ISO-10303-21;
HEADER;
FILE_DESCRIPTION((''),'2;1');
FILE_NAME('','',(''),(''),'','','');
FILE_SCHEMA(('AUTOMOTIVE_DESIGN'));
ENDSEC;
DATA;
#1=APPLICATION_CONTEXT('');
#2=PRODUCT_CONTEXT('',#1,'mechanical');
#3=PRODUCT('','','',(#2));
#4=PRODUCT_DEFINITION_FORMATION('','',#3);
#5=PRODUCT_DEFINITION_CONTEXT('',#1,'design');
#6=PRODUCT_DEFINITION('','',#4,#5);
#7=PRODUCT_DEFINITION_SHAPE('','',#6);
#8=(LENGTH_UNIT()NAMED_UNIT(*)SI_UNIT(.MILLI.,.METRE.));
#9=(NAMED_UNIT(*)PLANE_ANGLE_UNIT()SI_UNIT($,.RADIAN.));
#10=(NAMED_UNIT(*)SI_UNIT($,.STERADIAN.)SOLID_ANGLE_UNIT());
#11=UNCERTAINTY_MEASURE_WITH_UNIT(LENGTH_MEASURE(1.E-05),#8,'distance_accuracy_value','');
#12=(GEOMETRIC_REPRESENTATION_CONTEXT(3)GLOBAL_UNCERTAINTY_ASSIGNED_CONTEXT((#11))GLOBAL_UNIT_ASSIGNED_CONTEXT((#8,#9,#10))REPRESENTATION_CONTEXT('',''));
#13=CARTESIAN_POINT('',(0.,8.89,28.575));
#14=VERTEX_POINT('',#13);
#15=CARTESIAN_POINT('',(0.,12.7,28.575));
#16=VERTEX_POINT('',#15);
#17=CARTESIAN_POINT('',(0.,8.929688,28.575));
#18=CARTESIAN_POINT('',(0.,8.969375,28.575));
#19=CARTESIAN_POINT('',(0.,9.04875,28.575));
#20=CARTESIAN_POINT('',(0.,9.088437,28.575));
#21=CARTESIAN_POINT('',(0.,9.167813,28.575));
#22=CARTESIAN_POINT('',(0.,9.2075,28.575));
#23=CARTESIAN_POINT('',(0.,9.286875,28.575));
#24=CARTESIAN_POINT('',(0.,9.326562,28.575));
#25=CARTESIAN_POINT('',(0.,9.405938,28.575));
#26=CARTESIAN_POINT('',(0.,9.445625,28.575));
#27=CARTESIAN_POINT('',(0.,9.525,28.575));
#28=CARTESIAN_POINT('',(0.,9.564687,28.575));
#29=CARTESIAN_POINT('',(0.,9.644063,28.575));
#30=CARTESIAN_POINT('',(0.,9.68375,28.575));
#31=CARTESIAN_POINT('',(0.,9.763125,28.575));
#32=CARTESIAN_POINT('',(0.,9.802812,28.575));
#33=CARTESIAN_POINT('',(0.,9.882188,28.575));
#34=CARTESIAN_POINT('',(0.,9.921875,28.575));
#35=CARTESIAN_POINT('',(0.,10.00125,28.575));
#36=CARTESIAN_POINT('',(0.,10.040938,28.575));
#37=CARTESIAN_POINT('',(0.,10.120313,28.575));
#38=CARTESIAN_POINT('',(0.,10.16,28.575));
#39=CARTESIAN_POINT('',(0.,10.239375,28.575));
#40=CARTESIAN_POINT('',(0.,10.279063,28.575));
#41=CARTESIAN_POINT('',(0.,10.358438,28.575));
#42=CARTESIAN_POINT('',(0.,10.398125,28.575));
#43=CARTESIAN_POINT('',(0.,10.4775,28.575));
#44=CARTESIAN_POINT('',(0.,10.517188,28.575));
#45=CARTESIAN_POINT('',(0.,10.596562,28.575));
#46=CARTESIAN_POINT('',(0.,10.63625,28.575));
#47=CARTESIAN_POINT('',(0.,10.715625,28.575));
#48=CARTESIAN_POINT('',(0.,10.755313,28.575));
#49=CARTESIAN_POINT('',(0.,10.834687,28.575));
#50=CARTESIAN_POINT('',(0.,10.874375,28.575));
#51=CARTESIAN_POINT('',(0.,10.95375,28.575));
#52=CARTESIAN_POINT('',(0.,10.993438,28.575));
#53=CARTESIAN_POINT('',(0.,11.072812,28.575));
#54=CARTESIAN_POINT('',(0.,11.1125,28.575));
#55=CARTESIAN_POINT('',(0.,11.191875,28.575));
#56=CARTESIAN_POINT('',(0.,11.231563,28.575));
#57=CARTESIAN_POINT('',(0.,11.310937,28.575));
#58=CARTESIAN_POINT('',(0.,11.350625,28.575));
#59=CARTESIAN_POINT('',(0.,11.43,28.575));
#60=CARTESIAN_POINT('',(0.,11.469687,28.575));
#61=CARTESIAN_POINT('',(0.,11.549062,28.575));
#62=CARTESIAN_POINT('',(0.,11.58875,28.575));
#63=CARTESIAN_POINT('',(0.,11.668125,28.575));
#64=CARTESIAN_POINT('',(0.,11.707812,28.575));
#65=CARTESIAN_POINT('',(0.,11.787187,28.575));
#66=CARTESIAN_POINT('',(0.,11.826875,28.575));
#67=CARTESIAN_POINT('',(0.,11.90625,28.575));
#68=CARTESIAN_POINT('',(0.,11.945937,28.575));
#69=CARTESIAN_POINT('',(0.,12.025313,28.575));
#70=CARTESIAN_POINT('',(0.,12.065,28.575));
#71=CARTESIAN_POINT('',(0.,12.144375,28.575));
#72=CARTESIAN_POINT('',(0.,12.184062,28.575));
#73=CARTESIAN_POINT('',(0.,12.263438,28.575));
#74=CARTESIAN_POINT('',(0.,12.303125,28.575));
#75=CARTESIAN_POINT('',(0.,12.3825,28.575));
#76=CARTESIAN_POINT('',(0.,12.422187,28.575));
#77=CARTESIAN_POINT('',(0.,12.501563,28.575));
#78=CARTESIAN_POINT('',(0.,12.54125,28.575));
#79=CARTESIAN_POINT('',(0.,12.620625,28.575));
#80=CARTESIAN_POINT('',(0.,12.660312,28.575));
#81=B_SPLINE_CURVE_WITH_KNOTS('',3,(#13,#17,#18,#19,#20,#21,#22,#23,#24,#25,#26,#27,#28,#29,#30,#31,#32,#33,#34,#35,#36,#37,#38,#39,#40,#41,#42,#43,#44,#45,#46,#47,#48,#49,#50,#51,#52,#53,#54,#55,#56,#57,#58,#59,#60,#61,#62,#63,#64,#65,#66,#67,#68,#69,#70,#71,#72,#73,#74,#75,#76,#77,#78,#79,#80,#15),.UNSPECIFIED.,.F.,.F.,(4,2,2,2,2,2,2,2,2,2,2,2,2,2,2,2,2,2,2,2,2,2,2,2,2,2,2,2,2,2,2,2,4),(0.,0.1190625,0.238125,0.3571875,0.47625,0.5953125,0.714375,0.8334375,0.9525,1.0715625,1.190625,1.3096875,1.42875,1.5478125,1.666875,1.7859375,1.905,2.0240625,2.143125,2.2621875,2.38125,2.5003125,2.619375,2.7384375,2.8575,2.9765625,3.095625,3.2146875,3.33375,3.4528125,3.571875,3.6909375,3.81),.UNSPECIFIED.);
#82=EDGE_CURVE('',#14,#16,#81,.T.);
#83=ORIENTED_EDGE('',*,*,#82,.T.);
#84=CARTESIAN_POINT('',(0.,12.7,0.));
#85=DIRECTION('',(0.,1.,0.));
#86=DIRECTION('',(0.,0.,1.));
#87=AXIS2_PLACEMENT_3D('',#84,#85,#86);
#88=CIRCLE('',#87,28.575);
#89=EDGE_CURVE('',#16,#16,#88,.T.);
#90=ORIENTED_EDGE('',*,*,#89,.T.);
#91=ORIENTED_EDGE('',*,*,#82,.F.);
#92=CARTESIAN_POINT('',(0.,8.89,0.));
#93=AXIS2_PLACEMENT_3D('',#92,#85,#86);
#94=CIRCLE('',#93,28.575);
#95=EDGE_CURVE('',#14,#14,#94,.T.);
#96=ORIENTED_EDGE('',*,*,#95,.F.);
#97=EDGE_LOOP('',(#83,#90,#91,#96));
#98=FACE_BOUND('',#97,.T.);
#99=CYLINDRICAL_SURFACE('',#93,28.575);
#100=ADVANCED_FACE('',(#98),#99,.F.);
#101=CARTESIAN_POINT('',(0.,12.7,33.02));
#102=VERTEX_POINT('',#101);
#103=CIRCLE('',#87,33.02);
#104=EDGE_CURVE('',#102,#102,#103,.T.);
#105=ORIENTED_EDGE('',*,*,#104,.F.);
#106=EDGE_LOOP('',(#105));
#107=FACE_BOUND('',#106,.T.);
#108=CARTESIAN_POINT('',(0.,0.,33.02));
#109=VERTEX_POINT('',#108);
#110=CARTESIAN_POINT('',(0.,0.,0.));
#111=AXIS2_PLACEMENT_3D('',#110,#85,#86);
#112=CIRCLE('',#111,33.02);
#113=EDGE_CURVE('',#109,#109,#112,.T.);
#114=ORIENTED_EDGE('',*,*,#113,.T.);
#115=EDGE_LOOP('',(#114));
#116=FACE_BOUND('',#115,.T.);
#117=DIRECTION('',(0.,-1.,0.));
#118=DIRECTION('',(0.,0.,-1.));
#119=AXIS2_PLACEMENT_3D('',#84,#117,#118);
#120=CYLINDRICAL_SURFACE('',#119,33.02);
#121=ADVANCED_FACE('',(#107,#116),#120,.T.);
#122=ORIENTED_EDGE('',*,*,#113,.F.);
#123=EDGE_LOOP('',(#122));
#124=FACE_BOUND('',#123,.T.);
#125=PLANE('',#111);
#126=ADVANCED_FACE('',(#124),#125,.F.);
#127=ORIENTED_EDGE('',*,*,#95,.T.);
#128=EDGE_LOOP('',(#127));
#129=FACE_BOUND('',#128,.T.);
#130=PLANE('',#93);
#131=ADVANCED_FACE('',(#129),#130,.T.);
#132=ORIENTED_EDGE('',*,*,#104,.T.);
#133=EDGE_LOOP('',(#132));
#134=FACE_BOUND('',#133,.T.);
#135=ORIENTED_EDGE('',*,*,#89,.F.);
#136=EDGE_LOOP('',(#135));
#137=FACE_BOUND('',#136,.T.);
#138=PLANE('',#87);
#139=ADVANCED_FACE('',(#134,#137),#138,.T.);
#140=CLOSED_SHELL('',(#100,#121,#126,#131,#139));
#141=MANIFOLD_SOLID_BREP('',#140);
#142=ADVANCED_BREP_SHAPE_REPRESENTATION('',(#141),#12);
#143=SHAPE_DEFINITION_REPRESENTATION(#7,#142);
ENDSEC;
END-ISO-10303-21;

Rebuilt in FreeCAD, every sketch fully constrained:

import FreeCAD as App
import Part
import Sketcher
from FreeCAD import Vector
Q = App.Units.Quantity

doc = App.newDocument("Part")
body = doc.addObject("PartDesign::Body", "Body")

# Sketch on XZ plane
sketch1 = body.newObject("Sketcher::SketchObject", "Sketch")
sketch1.AttachmentSupport = (doc.getObject("XZ_Plane"), [""])
sketch1.MapMode = "FlatFace"
sketch1.addGeometry(Part.Circle(Vector(0, 0, 0), Vector(0, 0, 1), 33), False)
sketch1.addConstraint([
    Sketcher.Constraint("Coincident", 0, 3, -1, 1),
    Sketcher.Constraint("Diameter", 0, Q("2.6 in")),
])
pad1 = body.newObject("PartDesign::Pad", "Pad")
pad1.Profile = sketch1
pad1.Length = Q("0.5 in")
pad1.Reversed = True

# Sketch on XZ plane
sketch2 = body.newObject("Sketcher::SketchObject", "Sketch001")
sketch2.AttachmentSupport = (doc.getObject("XZ_Plane"), [""])
sketch2.MapMode = "FlatFace"
sketch2.AttachmentOffset = App.Placement(Vector(0, 0, -0.5 * 25.4), App.Rotation())
sketch2.addGeometry(Part.Circle(Vector(0, 0, 0), Vector(0, 0, 1), 29), False)
sketch2.addConstraint([
    Sketcher.Constraint("Coincident", 0, 3, -1, 1),
    Sketcher.Constraint("Diameter", 0, Q("2.25 in")),
])
pocket1 = body.newObject("PartDesign::Pocket", "Pocket")
pocket1.Profile = sketch2
pocket1.Length = Q("0.15 in")
pocket1.Reversed = True

doc.recompute()
